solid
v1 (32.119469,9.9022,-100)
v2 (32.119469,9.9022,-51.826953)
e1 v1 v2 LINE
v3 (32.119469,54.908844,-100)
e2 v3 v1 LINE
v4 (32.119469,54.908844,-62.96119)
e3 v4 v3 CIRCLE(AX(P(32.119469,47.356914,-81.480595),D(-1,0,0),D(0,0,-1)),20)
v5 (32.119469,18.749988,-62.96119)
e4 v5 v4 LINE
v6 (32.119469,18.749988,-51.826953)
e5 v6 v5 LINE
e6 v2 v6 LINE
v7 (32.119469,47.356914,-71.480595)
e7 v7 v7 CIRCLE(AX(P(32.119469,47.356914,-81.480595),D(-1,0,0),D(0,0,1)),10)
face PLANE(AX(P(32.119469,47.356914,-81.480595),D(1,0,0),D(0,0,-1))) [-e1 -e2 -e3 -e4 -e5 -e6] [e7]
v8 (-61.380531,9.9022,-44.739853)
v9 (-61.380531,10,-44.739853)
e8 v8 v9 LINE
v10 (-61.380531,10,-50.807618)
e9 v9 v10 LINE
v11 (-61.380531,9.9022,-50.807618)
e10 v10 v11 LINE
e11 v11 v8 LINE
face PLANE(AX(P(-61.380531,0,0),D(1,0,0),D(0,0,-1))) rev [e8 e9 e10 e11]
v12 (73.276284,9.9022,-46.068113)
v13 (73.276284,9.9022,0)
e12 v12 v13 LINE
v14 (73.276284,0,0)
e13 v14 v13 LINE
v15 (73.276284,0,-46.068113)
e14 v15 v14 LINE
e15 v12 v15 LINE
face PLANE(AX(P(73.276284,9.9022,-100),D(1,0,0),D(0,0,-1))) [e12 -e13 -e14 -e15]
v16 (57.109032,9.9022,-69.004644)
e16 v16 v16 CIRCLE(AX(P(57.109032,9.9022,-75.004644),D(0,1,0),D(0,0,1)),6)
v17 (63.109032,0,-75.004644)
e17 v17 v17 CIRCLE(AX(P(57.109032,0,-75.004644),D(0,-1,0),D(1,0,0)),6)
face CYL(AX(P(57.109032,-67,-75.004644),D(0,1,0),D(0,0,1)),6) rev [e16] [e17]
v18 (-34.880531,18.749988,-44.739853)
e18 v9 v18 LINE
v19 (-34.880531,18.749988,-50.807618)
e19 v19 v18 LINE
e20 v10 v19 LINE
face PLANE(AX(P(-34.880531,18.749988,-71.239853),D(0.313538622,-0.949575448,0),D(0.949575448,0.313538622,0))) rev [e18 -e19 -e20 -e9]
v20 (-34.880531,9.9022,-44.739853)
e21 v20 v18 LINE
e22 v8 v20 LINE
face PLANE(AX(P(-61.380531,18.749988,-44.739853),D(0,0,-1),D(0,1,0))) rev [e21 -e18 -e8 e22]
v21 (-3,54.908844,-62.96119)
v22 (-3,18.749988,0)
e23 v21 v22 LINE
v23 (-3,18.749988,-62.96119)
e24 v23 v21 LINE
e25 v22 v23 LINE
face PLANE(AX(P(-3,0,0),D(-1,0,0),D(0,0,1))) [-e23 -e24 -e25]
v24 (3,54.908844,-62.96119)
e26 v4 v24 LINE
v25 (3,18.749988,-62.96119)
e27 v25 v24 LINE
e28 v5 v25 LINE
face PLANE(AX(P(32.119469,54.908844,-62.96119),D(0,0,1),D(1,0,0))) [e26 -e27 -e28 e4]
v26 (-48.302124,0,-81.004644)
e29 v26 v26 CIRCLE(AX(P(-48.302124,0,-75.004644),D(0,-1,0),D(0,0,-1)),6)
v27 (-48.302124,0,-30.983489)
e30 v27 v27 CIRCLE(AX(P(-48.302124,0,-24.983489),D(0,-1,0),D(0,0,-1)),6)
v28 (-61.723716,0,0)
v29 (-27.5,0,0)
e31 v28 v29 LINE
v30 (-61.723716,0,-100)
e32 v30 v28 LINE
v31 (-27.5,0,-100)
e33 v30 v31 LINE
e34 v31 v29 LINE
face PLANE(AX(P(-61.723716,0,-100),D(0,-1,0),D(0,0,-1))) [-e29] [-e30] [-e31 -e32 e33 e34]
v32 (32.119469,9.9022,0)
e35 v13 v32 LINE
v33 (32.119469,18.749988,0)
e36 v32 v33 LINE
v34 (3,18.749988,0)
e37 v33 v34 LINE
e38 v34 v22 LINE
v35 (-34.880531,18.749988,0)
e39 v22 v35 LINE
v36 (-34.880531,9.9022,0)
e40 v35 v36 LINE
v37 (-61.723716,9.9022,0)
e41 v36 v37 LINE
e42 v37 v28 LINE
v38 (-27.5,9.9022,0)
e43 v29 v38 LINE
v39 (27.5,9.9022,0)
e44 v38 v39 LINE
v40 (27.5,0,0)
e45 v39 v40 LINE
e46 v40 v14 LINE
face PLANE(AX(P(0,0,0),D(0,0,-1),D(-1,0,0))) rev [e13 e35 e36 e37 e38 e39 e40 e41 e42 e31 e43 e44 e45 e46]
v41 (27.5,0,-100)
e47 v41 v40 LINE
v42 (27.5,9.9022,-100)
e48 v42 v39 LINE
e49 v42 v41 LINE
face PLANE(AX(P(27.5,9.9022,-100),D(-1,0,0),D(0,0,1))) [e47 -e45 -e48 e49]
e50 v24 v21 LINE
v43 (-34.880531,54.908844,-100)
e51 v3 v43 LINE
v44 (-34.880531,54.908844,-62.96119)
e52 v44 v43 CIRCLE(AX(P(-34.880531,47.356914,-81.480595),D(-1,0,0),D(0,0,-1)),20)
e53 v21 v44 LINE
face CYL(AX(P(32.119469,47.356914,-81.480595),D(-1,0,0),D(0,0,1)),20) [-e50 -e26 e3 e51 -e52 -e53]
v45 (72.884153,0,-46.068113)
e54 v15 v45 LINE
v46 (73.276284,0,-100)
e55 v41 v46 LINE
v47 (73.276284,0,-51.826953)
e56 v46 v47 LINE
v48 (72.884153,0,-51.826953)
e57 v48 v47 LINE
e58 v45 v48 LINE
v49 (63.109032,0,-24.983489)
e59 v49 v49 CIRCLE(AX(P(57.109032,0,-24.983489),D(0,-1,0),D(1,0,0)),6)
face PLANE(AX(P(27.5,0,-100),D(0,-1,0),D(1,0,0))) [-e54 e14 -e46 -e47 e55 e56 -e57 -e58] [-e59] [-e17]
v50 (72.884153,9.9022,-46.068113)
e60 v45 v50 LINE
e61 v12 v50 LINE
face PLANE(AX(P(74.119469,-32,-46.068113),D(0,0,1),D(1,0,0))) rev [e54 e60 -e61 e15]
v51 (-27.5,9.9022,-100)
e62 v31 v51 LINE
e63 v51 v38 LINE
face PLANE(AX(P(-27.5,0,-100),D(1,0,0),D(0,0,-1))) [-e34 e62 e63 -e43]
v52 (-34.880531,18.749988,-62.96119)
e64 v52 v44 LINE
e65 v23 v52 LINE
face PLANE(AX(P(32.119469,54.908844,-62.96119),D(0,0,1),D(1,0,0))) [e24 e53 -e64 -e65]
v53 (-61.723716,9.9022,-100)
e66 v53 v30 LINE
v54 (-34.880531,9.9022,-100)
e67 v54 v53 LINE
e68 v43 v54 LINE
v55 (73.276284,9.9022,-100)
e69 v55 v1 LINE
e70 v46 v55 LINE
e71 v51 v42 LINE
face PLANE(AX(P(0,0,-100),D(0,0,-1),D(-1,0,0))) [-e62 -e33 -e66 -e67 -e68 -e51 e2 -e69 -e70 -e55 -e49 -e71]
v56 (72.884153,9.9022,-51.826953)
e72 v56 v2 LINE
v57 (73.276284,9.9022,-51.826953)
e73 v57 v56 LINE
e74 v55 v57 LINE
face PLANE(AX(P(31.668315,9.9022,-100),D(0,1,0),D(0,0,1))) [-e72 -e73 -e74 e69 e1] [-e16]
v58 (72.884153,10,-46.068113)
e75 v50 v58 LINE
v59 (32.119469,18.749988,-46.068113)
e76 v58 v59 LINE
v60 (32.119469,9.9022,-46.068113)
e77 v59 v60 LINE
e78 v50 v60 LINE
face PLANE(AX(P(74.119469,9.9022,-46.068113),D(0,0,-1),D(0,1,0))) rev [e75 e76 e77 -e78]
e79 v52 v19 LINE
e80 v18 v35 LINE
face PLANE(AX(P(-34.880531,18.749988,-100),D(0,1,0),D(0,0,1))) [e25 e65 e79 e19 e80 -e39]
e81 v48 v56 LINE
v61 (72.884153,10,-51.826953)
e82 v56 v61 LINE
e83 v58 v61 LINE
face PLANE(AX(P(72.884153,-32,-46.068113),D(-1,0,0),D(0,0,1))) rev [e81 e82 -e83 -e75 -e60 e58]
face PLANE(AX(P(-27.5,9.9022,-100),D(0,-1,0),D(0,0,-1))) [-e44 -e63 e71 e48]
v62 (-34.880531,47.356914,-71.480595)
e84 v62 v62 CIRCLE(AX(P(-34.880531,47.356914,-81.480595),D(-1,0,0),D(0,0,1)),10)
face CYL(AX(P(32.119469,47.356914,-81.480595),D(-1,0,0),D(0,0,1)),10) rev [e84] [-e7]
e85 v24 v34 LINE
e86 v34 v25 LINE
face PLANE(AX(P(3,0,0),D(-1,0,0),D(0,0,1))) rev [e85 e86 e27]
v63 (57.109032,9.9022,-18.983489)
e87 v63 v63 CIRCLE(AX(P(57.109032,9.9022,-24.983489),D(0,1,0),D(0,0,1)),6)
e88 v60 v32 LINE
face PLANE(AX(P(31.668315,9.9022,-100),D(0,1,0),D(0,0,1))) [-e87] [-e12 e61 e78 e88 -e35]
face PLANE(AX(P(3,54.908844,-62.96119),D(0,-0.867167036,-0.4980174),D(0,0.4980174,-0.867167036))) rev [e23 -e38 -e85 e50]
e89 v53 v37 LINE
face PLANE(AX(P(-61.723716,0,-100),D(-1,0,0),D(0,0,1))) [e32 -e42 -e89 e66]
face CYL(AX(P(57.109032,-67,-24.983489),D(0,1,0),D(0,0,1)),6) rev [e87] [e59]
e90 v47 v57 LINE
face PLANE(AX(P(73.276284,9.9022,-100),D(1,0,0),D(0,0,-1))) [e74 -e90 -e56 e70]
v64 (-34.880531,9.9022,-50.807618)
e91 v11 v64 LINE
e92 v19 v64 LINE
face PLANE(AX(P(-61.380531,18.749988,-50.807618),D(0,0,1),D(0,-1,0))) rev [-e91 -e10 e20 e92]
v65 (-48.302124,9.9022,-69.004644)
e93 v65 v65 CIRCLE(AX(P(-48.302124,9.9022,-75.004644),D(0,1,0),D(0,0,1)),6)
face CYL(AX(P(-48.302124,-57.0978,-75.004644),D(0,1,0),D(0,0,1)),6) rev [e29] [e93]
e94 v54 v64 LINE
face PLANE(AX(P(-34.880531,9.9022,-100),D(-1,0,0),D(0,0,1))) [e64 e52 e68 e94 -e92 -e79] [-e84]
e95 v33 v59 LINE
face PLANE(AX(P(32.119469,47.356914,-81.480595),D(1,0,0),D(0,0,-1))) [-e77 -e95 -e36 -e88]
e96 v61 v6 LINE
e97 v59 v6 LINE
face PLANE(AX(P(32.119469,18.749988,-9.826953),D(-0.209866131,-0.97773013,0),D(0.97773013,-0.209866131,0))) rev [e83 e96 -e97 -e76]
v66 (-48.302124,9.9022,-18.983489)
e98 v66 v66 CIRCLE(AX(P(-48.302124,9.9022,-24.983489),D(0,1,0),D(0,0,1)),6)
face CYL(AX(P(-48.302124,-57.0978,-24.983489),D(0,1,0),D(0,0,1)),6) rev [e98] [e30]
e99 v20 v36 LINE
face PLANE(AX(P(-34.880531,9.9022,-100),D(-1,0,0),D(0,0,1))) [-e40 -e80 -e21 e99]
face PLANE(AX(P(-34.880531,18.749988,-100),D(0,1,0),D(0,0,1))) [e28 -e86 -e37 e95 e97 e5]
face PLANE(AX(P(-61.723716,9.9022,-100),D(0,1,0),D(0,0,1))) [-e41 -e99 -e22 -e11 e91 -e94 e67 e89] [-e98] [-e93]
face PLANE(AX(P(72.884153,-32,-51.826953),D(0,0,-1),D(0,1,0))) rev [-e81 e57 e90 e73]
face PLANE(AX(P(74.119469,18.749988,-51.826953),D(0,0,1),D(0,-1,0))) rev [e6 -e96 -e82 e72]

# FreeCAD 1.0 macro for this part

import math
import FreeCAD as App
import Part
import Sketcher
Q = App.Units.Quantity


def add_polygon(sketch, points):
    """Adds a closed chain of lines whose ends are joined by coincident constraints."""
    first, n = sketch.GeometryCount, len(points)
    for a, b in zip(points, points[1:] + points[:1]):
        sketch.addGeometry(Part.LineSegment(App.Vector(*a, 0), App.Vector(*b, 0)), False)
    for i in range(n):
        sketch.addConstraint(Sketcher.Constraint("Coincident", first + i, 2, first + (i + 1) % n, 1))

doc = App.newDocument("Part")
body = doc.addObject("PartDesign::Body", "Body")

sketch1 = body.newObject("Sketcher::SketchObject", "Sketch")
sketch1.AttachmentSupport = (doc.getObject("XY_Plane"), [""])
sketch1.MapMode = "FlatFace"
add_polygon(sketch1, [(-62, 0), (-28, 0), (-28, 10), (28, 10), (28, 0), (73, 0), (73, 10), (32, 10), (32, 19), (-35, 19), (-35, 10), (-62, 10)])
sketch1.addConstraint(Sketcher.Constraint("Horizontal", 0))
sketch1.addConstraint(Sketcher.Constraint("Vertical", 1))
sketch1.addConstraint(Sketcher.Constraint("Horizontal", 2))
sketch1.addConstraint(Sketcher.Constraint("Vertical", 3))
sketch1.addConstraint(Sketcher.Constraint("Horizontal", 4))
sketch1.addConstraint(Sketcher.Constraint("Vertical", 5))
sketch1.addConstraint(Sketcher.Constraint("Horizontal", 6))
sketch1.addConstraint(Sketcher.Constraint("Vertical", 7))
sketch1.addConstraint(Sketcher.Constraint("Horizontal", 8))
sketch1.addConstraint(Sketcher.Constraint("Vertical", 9))
sketch1.addConstraint(Sketcher.Constraint("Horizontal", 10))
sketch1.addConstraint(Sketcher.Constraint("Vertical", 11))
sketch1.addConstraint(Sketcher.Constraint("Symmetric", 0, 2, 3, 2, -1, 1))
sketch1.addConstraint(Sketcher.Constraint("PointOnObject", 0, 2, -1))
sketch1.addConstraint(Sketcher.Constraint("Horizontal", 2, 2, 5, 2))
sketch1.addConstraint(Sketcher.Constraint("Horizontal", 6, 2, 9, 2))
sketch1.addConstraint(Sketcher.Constraint("DistanceX", 2, 1, 2, 2, Q("55 mm")))
sketch1.addConstraint(Sketcher.Constraint("DistanceY", 1, 1, 1, 2, Q("9.9022 mm")))
sketch1.addConstraint(Sketcher.Constraint("DistanceX", 6, 2, 6, 1, Q("41.607969 mm")))
sketch1.addConstraint(Sketcher.Constraint("DistanceX", 0, 1, 0, 2, Q("34.223716 mm")))
sketch1.addConstraint(Sketcher.Constraint("DistanceX", 4, 1, 4, 2, Q("45.776284 mm")))
sketch1.addConstraint(Sketcher.Constraint("DistanceX", 8, 2, 8, 1, Q("66.548846 mm")))
sketch1.addConstraint(Sketcher.Constraint("DistanceY", 7, 1, 7, 2, Q("8.847787 mm")))
pad1 = body.newObject("PartDesign::Pad", "Pad")
pad1.Profile = sketch1
pad1.Length = 100
pad1.Reversed = True

sketch2 = body.newObject("Sketcher::SketchObject", "Sketch001")
sketch2.AttachmentSupport = (doc.getObject("YZ_Plane"), [""])
sketch2.MapMode = "FlatFace"
sketch2.AttachmentOffset = App.Placement(App.Vector(0, 0, -34.880531), App.Rotation())
sketch2.addGeometry(Part.LineSegment(App.Vector(55, -100, 0), App.Vector(10, -100, 0)), False)
sketch2.addGeometry(Part.LineSegment(App.Vector(10, -100, 0), App.Vector(10, 0, 0)), False)
sketch2.addGeometry(Part.LineSegment(App.Vector(10, 0, 0), App.Vector(19, 0, 0)), False)
sketch2.addGeometry(Part.LineSegment(App.Vector(19, 0, 0), App.Vector(19, -63, 0)), False)
sketch2.addGeometry(Part.LineSegment(App.Vector(19, -63, 0), App.Vector(55, -63, 0)), False)
sketch2.addGeometry(Part.ArcOfCircle(Part.Circle(App.Vector(47, -81, 0), App.Vector(0, 0, 1), 20), math.radians(-68), math.radians(68)), False)
sketch2.addGeometry(Part.Circle(App.Vector(47, -81, 0), App.Vector(0, 0, 1), 10), False)
sketch2.addConstraint(Sketcher.Constraint("Coincident", 0, 2, 1, 1))
sketch2.addConstraint(Sketcher.Constraint("Coincident", 1, 2, 2, 1))
sketch2.addConstraint(Sketcher.Constraint("Coincident", 2, 2, 3, 1))
sketch2.addConstraint(Sketcher.Constraint("Coincident", 3, 2, 4, 1))
sketch2.addConstraint(Sketcher.Constraint("Coincident", 4, 2, 5, 2))
sketch2.addConstraint(Sketcher.Constraint("Coincident", 5, 1, 0, 1))
sketch2.addConstraint(Sketcher.Constraint("Horizontal", 0))
sketch2.addConstraint(Sketcher.Constraint("Vertical", 1))
sketch2.addConstraint(Sketcher.Constraint("Horizontal", 2))
sketch2.addConstraint(Sketcher.Constraint("Vertical", 3))
sketch2.addConstraint(Sketcher.Constraint("Horizontal", 4))
sketch2.addConstraint(Sketcher.Constraint("Coincident", 6, 3, 5, 3))
sketch2.addConstraint(Sketcher.Constraint("PointOnObject", 1, 2, -1))
sketch2.addConstraint(Sketcher.Constraint("Vertical", 4, 2, 5, 1))
sketch2.addConstraint(Sketcher.Constraint("Diameter", 6, Q("20 mm")))
sketch2.addConstraint(Sketcher.Constraint("Radius", 5, Q("20 mm")))
sketch2.addConstraint(Sketcher.Constraint("DistanceY", 1, 1, 1, 2, Q("100 mm")))
sketch2.addConstraint(Sketcher.Constraint("DistanceY", 3, 2, 3, 1, Q("62.96119 mm")))
sketch2.addConstraint(Sketcher.Constraint("DistanceX", -1, 1, 0, 2, Q("9.9022 mm")))
sketch2.addConstraint(Sketcher.Constraint("DistanceX", 0, 2, 0, 1, Q("45.006643 mm")))
sketch2.addConstraint(Sketcher.Constraint("DistanceX", 2, 1, 2, 2, Q("8.847787 mm")))
pad2 = body.newObject("PartDesign::Pad", "Pad001")
pad2.Profile = sketch2
pad2.Length = 67

sketch3 = body.newObject("Sketcher::SketchObject", "Sketch002")
sketch3.AttachmentSupport = (doc.getObject("XZ_Plane"), [""])
sketch3.MapMode = "FlatFace"
sketch3.AttachmentOffset = App.Placement(App.Vector(0, 0, -9.9022), App.Rotation())
sketch3.addGeometry(Part.Circle(App.Vector(-48, -25, 0), App.Vector(0, 0, 1), 6), False)
sketch3.addGeometry(Part.Circle(App.Vector(-48, -75, 0), App.Vector(0, 0, 1), 6), False)
sketch3.addConstraint(Sketcher.Constraint("Equal", 0, 1))
sketch3.addConstraint(Sketcher.Constraint("Vertical", 0, 3, 1, 3))
sketch3.addConstraint(Sketcher.Constraint("Diameter", 0, Q("12 mm")))
sketch3.addConstraint(Sketcher.Constraint("DistanceY", 0, 3, -1, 1, Q("24.983489 mm")))
sketch3.addConstraint(Sketcher.Constraint("DistanceX", 0, 3, -1, 1, Q("48.302124 mm")))
sketch3.addConstraint(Sketcher.Constraint("DistanceY", 1, 3, -1, 1, Q("75.004644 mm")))
pocket1 = body.newObject("PartDesign::Pocket", "Pocket")
pocket1.Profile = sketch3
pocket1.Length = 67
pocket1.Reversed = True

sketch4 = body.newObject("Sketcher::SketchObject", "Sketch003")
sketch4.AttachmentSupport = (doc.getObject("XZ_Plane"), [""])
sketch4.MapMode = "FlatFace"
sketch4.addGeometry(Part.Circle(App.Vector(57, -75, 0), App.Vector(0, 0, 1), 6), False)
sketch4.addGeometry(Part.Circle(App.Vector(57, -25, 0), App.Vector(0, 0, 1), 6), False)
sketch4.addConstraint(Sketcher.Constraint("Equal", 0, 1))
sketch4.addConstraint(Sketcher.Constraint("Vertical", 0, 3, 1, 3))
sketch4.addConstraint(Sketcher.Constraint("Diameter", 0, Q("12 mm")))
sketch4.addConstraint(Sketcher.Constraint("DistanceX", -1, 1, 0, 3, Q("57.109032 mm")))
sketch4.addConstraint(Sketcher.Constraint("DistanceY", 1, 3, -1, 1, Q("24.983489 mm")))
sketch4.addConstraint(Sketcher.Constraint("DistanceY", 0, 3, -1, 1, Q("75.004644 mm")))
pocket2 = body.newObject("PartDesign::Pocket", "Pocket001")
pocket2.Profile = sketch4
pocket2.Type = "ThroughAll"
pocket2.Midplane = True

sketch5 = body.newObject("Sketcher::SketchObject", "Sketch004")
sketch5.AttachmentSupport = (doc.getObject("YZ_Plane"), [""])
sketch5.MapMode = "FlatFace"
add_polygon(sketch5, [(55, -63), (19, 0), (19, -63)])
sketch5.addConstraint(Sketcher.Constraint("Vertical", 1))
sketch5.addConstraint(Sketcher.Constraint("Horizontal", 2))
sketch5.addConstraint(Sketcher.Constraint("PointOnObject", 0, 2, -1))
sketch5.addConstraint(Sketcher.Constraint("DistanceY", 1, 2, 1, 1, Q("62.96119 mm")))
sketch5.addConstraint(Sketcher.Constraint("Distance", 0, Q("72.605608 mm")))
sketch5.addConstraint(Sketcher.Constraint("DistanceX", -1, 1, 0, 2, Q("18.749988 mm")))
pad3 = body.newObject("PartDesign::Pad", "Pad002")
pad3.Profile = sketch5
pad3.Length = 6
pad3.Midplane = True

sketch6 = body.newObject("Sketcher::SketchObject", "Sketch005")
sketch6.AttachmentSupport = (doc.getObject("YZ_Plane"), [""])
sketch6.MapMode = "FlatFace"
sketch6.AttachmentOffset = App.Placement(App.Vector(0, 0, -34.880531), App.Rotation())
add_polygon(sketch6, [(19, -51), (10, -51), (10, -45), (19, -45)])
sketch6.addConstraint(Sketcher.Constraint("Horizontal", 0))
sketch6.addConstraint(Sketcher.Constraint("Vertical", 1))
sketch6.addConstraint(Sketcher.Constraint("Horizontal", 2))
sketch6.addConstraint(Sketcher.Constraint("Vertical", 3))
sketch6.addConstraint(Sketcher.Constraint("DistanceX", -1, 1, 0, 2, Q("9.9022 mm")))
sketch6.addConstraint(Sketcher.Constraint("DistanceX", 0, 2, 0, 1, Q("8.847787 mm")))
sketch6.addConstraint(Sketcher.Constraint("DistanceY", 1, 1, 1, 2, Q("6.067765 mm")))
sketch6.addConstraint(Sketcher.Constraint("DistanceY", 0, 2, -1, 1, Q("50.807618 mm")))
pad4 = body.newObject("PartDesign::Pad", "Pad003")
pad4.Profile = sketch6
pad4.Length = 26.5
pad4.Reversed = True

sketch7 = body.newObject("Sketcher::SketchObject", "Sketch006")
sketch7.AttachmentSupport = (doc.getObject("XY_Plane"), [""])
sketch7.MapMode = "FlatFace"
sketch7.AttachmentOffset = App.Placement(App.Vector(0, 0, -44.739853), App.Rotation())
add_polygon(sketch7, [(-61, 10), (-35, 19), (-61, 19)])
sketch7.addConstraint(Sketcher.Constraint("Horizontal", 1))
sketch7.addConstraint(Sketcher.Constraint("Vertical", 2))
sketch7.addConstraint(Sketcher.Constraint("DistanceX", 1, 2, 1, 1, Q("26.5 mm")))
sketch7.addConstraint(Sketcher.Constraint("DistanceY", -1, 1, 2, 2, Q("10 mm")))
sketch7.addConstraint(Sketcher.Constraint("Distance", 0, Q("27.907208 mm")))
sketch7.addConstraint(Sketcher.Constraint("DistanceX", 0, 2, -1, 1, Q("34.880531 mm")))
pocket3 = body.newObject("PartDesign::Pocket", "Pocket002")
pocket3.Profile = sketch7
pocket3.Length = 26.5

sketch8 = body.newObject("Sketcher::SketchObject", "Sketch007")
sketch8.AttachmentSupport = (doc.getObject("YZ_Plane"), [""])
sketch8.MapMode = "FlatFace"
sketch8.AttachmentOffset = App.Placement(App.Vector(0, 0, 32.119469), App.Rotation())
add_polygon(sketch8, [(19, -46), (10, -46), (10, -52), (19, -52)])
sketch8.addConstraint(Sketcher.Constraint("Horizontal", 0))
sketch8.addConstraint(Sketcher.Constraint("Vertical", 1))
sketch8.addConstraint(Sketcher.Constraint("Horizontal", 2))
sketch8.addConstraint(Sketcher.Constraint("Vertical", 3))
sketch8.addConstraint(Sketcher.Constraint("DistanceY", 1, 2, 1, 1, Q("5.75884 mm")))
sketch8.addConstraint(Sketcher.Constraint("DistanceX", -1, 1, 0, 2, Q("9.9022 mm")))
sketch8.addConstraint(Sketcher.Constraint("DistanceX", 0, 2, 0, 1, Q("8.847787 mm")))
sketch8.addConstraint(Sketcher.Constraint("DistanceY", 0, 2, -1, 1, Q("46.068113 mm")))
pad5 = body.newObject("PartDesign::Pad", "Pad004")
pad5.Profile = sketch8
pad5.Length = 42

sketch9 = body.newObject("Sketcher::SketchObject", "Sketch008")
sketch9.AttachmentSupport = (doc.getObject("XY_Plane"), [""])
sketch9.MapMode = "FlatFace"
sketch9.AttachmentOffset = App.Placement(App.Vector(0, 0, -51.826953), App.Rotation())
add_polygon(sketch9, [(72.9, 10), (32.1, 18.7), (74.1, 18.7), (75, 10)])
sketch9.addConstraint(Sketcher.Constraint("Horizontal", 1))
sketch9.addConstraint(Sketcher.Constraint("Horizontal", 3))
sketch9.addConstraint(Sketcher.Constraint("DistanceX", 1, 1, 1, 2, Q("42 mm")))
sketch9.addConstraint(Sketcher.Constraint("DistanceY", -1, 1, 2, 2, Q("10 mm")))
sketch9.addConstraint(Sketcher.Constraint("DistanceX", 3, 2, 3, 1, Q("2.091693 mm")))
sketch9.addConstraint(Sketcher.Constraint("DistanceX", -1, 1, 0, 2, Q("32.119469 mm")))
sketch9.addConstraint(Sketcher.Constraint("Distance", 0, Q("41.693186 mm")))
sketch9.addConstraint(Sketcher.Constraint("Distance", 2, Q("8.791795 mm")))
pocket4 = body.newObject("PartDesign::Pocket", "Pocket003")
pocket4.Profile = sketch9
pocket4.Length = 42
pocket4.Reversed = True

sketch10 = body.newObject("Sketcher::SketchObject", "Sketch009")
sketch10.AttachmentSupport = (doc.getObject("XZ_Plane"), [""])
sketch10.MapMode = "FlatFace"
sketch10.AttachmentOffset = App.Placement(App.Vector(0, 0, -10), App.Rotation())
add_polygon(sketch10, [(72.9, -51.8), (72.9, -46.1), (74.1, -46.1), (74.1, -51.8)])
sketch10.addConstraint(Sketcher.Constraint("Vertical", 0))
sketch10.addConstraint(Sketcher.Constraint("Horizontal", 1))
sketch10.addConstraint(Sketcher.Constraint("Vertical", 2))
sketch10.addConstraint(Sketcher.Constraint("Horizontal", 3))
sketch10.addConstraint(Sketcher.Constraint("DistanceY", 0, 1, 0, 2, Q("5.75884 mm")))
sketch10.addConstraint(Sketcher.Constraint("DistanceX", 1, 1, 1, 2, Q("1.235316 mm")))
sketch10.addConstraint(Sketcher.Constraint("DistanceX", -1, 1, 1, 2, Q("74.119469 mm")))
sketch10.addConstraint(Sketcher.Constraint("DistanceY", 0, 2, -1, 1, Q("46.068113 mm")))
pocket5 = body.newObject("PartDesign::Pocket", "Pocket004")
pocket5.Profile = sketch10
pocket5.Length = 42
pocket5.Reversed = True

doc.recompute()
